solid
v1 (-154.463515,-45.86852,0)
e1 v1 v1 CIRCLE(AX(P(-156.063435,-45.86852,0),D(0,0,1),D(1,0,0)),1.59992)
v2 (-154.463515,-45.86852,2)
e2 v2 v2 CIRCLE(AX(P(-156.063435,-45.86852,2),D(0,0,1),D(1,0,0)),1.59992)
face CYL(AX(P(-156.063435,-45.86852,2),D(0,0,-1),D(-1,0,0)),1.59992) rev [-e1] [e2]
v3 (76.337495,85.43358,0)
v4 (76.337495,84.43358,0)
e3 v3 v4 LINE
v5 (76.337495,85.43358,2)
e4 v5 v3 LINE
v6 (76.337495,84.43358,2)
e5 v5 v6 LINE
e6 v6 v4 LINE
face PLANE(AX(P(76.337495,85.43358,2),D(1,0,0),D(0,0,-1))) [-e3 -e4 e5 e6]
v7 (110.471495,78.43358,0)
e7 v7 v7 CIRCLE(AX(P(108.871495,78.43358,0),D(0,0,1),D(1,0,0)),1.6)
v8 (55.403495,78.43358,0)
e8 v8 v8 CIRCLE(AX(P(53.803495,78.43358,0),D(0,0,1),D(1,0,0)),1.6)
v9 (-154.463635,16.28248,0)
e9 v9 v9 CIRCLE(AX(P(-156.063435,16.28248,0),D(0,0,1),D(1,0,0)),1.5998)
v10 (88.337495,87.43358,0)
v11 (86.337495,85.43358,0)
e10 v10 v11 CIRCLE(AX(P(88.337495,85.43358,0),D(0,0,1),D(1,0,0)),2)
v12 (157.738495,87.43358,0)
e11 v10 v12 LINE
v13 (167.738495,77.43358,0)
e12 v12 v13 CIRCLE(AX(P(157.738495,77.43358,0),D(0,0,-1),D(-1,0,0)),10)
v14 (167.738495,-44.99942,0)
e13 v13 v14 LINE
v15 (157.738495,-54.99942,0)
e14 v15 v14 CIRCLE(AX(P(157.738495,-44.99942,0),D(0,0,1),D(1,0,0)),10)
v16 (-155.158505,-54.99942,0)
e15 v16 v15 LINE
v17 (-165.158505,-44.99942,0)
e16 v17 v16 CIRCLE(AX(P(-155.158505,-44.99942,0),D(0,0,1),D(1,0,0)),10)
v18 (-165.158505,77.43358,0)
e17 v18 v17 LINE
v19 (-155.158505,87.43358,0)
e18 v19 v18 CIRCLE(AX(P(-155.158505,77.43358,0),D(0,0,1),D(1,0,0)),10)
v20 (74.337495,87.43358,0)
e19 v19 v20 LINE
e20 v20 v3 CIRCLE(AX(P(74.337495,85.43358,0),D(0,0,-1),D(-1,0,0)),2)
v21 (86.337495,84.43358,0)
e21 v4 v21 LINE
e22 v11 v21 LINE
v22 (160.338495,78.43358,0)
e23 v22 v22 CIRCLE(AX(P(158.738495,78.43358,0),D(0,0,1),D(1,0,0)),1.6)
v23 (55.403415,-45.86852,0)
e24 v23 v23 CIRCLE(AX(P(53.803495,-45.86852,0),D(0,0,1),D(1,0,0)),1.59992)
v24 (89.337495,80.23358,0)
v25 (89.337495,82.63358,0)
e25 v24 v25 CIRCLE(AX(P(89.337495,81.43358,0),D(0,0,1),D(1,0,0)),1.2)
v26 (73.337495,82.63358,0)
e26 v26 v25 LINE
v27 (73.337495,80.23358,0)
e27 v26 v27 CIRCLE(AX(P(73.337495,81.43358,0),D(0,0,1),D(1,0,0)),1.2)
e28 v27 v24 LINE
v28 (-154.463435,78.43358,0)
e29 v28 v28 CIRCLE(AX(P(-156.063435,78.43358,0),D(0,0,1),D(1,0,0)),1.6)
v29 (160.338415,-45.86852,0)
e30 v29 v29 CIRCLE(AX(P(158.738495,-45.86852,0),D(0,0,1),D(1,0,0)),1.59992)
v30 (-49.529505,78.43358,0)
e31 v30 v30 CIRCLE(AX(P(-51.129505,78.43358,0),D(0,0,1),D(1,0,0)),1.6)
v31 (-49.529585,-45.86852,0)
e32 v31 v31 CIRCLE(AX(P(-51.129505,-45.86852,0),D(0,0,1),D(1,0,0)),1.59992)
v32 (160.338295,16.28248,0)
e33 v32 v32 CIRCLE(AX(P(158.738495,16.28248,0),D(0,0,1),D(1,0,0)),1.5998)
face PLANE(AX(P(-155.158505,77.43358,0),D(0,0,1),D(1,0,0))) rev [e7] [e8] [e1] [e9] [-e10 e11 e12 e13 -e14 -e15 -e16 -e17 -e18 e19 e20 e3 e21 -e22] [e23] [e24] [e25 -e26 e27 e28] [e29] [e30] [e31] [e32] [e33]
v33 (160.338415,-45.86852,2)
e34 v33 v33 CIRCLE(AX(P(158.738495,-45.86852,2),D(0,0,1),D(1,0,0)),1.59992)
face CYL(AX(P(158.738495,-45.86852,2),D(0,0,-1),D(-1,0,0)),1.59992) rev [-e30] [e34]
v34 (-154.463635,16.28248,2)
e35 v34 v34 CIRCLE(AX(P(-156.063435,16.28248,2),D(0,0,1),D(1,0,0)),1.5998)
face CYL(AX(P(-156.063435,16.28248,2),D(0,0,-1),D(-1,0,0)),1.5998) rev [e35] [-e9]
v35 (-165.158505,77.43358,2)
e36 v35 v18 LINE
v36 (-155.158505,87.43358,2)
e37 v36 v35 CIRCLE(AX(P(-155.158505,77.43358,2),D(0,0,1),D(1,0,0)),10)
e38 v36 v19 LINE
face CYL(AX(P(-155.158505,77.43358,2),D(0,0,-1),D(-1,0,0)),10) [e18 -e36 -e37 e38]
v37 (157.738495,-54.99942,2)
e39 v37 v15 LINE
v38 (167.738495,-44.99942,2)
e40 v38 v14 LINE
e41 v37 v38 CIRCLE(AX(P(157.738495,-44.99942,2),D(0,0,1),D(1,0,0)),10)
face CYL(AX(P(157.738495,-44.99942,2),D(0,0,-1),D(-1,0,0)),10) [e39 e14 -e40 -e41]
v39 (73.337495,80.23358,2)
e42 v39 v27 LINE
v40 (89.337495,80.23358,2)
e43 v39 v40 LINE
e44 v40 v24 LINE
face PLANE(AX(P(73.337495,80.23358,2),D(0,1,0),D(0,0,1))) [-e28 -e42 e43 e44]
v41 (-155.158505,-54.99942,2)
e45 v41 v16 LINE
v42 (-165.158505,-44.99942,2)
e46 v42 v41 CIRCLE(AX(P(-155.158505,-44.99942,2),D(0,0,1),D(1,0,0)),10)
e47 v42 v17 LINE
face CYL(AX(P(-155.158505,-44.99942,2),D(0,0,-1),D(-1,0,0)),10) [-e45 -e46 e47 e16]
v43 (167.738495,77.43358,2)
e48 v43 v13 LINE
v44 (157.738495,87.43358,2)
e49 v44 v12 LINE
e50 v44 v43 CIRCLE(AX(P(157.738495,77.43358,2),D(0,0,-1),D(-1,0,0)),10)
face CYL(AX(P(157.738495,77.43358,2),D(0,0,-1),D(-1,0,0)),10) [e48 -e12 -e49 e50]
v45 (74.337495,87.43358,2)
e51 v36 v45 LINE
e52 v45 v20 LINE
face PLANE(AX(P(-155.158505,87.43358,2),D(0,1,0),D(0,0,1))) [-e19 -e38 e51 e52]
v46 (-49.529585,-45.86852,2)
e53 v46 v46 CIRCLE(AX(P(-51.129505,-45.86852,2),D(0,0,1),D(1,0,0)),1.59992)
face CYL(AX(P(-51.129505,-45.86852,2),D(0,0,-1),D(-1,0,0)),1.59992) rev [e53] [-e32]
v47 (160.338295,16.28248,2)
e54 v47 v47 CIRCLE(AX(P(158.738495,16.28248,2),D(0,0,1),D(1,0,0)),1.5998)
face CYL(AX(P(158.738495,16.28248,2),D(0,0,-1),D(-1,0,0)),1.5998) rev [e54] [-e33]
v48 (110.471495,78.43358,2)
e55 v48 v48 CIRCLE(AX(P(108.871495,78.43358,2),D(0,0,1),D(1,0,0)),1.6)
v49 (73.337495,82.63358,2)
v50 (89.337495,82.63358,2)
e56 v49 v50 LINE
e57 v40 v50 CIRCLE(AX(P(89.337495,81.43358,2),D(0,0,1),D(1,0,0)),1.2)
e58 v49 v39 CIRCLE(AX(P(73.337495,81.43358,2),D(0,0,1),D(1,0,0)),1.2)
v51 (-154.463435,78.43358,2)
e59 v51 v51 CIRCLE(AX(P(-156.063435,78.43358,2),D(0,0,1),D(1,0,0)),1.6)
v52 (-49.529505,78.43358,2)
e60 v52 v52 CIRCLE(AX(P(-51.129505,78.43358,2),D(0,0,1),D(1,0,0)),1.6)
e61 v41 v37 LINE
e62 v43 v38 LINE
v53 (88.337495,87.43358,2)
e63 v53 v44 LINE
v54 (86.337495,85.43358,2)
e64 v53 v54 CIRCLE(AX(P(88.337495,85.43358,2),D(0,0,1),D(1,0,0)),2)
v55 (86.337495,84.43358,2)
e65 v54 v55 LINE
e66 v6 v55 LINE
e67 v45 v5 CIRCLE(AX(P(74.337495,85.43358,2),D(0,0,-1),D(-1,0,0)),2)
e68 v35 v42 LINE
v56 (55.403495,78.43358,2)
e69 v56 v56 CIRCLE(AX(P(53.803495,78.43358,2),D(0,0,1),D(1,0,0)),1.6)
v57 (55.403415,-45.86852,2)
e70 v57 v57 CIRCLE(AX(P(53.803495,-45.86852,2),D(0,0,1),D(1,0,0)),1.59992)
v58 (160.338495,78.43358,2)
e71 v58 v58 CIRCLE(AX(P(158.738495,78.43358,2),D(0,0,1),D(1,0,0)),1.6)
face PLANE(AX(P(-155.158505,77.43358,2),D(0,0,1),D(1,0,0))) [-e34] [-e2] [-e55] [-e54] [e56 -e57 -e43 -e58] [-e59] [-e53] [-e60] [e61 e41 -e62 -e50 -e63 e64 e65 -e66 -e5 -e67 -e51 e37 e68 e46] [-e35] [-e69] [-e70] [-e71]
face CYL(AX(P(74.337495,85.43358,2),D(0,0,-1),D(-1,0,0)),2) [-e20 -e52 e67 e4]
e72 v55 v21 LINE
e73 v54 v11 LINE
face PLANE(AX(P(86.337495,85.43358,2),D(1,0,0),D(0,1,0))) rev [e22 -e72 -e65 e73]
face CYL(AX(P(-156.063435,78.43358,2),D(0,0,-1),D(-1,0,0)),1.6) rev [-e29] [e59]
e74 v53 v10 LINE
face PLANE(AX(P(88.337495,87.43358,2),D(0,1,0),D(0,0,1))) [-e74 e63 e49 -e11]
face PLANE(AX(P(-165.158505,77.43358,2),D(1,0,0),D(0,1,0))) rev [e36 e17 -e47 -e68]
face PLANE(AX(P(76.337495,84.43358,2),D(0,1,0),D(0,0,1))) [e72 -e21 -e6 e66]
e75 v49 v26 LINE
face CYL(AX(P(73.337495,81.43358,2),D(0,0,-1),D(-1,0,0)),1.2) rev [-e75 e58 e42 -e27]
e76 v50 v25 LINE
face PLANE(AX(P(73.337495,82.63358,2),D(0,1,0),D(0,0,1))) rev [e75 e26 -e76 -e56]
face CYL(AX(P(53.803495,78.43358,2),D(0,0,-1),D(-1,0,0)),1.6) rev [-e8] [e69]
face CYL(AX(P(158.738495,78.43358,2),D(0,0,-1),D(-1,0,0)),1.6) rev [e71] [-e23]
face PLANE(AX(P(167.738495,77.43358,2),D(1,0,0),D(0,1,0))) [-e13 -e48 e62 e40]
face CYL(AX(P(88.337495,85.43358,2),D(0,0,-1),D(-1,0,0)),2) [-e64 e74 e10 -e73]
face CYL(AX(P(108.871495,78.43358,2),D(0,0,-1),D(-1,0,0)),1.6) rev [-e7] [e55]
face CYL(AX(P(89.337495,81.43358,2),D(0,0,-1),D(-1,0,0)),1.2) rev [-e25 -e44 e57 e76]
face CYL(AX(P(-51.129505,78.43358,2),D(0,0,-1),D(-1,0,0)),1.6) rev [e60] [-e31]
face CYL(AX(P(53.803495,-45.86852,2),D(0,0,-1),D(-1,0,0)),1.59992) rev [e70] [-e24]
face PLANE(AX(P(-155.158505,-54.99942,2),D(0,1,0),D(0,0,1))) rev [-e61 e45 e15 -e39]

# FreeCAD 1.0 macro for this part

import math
import FreeCAD as App
import Part
import Sketcher

V = App.Vector

doc = App.newDocument("Part")
body = doc.addObject("PartDesign::Body", "Body")

# Sketch on XY plane
sketch1 = body.newObject("Sketcher::SketchObject", "Sketch")
sketch1.AttachmentSupport = (doc.getObject("XY_Plane"), [""])
sketch1.MapMode = "FlatFace"
sketch1.addGeometry(Part.LineSegment(V(-165.2, 77.4, 0), V(-165.2, -45, 0)), False)
sketch1.addGeometry(Part.ArcOfCircle(Part.Circle(V(-155.2, -45, 0), V(0, 0, 1), 10), math.radians(180), math.radians(270)), False)
sketch1.addGeometry(Part.LineSegment(V(-155.2, -55, 0), V(157.7, -55, 0)), False)
sketch1.addGeometry(Part.ArcOfCircle(Part.Circle(V(157.7, -45, 0), V(0, 0, 1), 10), math.radians(-90), math.radians(0)), False)
sketch1.addGeometry(Part.LineSegment(V(167.7, -45, 0), V(167.7, 77.4, 0)), False)
sketch1.addGeometry(Part.ArcOfCircle(Part.Circle(V(157.7, 77.4, 0), V(0, 0, 1), 10), math.radians(0), math.radians(90)), False)
sketch1.addGeometry(Part.LineSegment(V(157.7, 87.4, 0), V(88.3, 87.4, 0)), False)
sketch1.addGeometry(Part.ArcOfCircle(Part.Circle(V(88.3, 85.4, 0), V(0, 0, 1), 2), math.radians(90), math.radians(180)), False)
sketch1.addGeometry(Part.LineSegment(V(86.3, 85.4, 0), V(86.3, 84.4, 0)), False)
sketch1.addGeometry(Part.LineSegment(V(86.3, 84.4, 0), V(76.3, 84.4, 0)), False)
sketch1.addGeometry(Part.LineSegment(V(76.3, 84.4, 0), V(76.3, 85.4, 0)), False)
sketch1.addGeometry(Part.ArcOfCircle(Part.Circle(V(74.3, 85.4, 0), V(0, 0, 1), 2), math.radians(0), math.radians(90)), False)
sketch1.addGeometry(Part.LineSegment(V(74.3, 87.4, 0), V(-155.2, 87.4, 0)), False)
sketch1.addGeometry(Part.ArcOfCircle(Part.Circle(V(-155.2, 77.4, 0), V(0, 0, 1), 10), math.radians(90), math.radians(180)), False)
sketch1.addGeometry(Part.Circle(V(-156.1, -45.9, 0), V(0, 0, 1), 1.6), False)
sketch1.addGeometry(Part.Circle(V(-51.1, -45.9, 0), V(0, 0, 1), 1.6), False)
sketch1.addGeometry(Part.Circle(V(-156.1, 16.3, 0), V(0, 0, 1), 1.6), False)
sketch1.addGeometry(Part.Circle(V(53.8, -45.9, 0), V(0, 0, 1), 1.6), False)
sketch1.addGeometry(Part.Circle(V(158.7, -45.9, 0), V(0, 0, 1), 1.6), False)
sketch1.addGeometry(Part.Circle(V(158.7, 16.3, 0), V(0, 0, 1), 1.6), False)
sketch1.addGeometry(Part.Circle(V(-156.1, 78.4, 0), V(0, 0, 1), 1.6), False)
sketch1.addGeometry(Part.Circle(V(-51.1, 78.4, 0), V(0, 0, 1), 1.6), False)
sketch1.addGeometry(Part.Circle(V(53.8, 78.4, 0), V(0, 0, 1), 1.6), False)
sketch1.addGeometry(Part.ArcOfCircle(Part.Circle(V(73.3, 81.4, 0), V(0, 0, 1), 1.2), math.radians(90), math.radians(270)), False)
sketch1.addGeometry(Part.LineSegment(V(73.3, 82.6, 0), V(89.3, 82.6, 0)), False)
sketch1.addGeometry(Part.ArcOfCircle(Part.Circle(V(89.3, 81.4, 0), V(0, 0, 1), 1.2), math.radians(-90), math.radians(90)), False)
sketch1.addGeometry(Part.LineSegment(V(89.3, 80.2, 0), V(73.3, 80.2, 0)), False)
sketch1.addGeometry(Part.Circle(V(108.9, 78.4, 0), V(0, 0, 1), 1.6), False)
sketch1.addGeometry(Part.Circle(V(158.7, 78.4, 0), V(0, 0, 1), 1.6), False)
sketch1.addConstraint(Sketcher.Constraint("Tangent", 0, 2, 1, 1))
sketch1.addConstraint(Sketcher.Constraint("Tangent", 1, 2, 2, 1))
sketch1.addConstraint(Sketcher.Constraint("Tangent", 2, 2, 3, 1))
sketch1.addConstraint(Sketcher.Constraint("Tangent", 3, 2, 4, 1))
sketch1.addConstraint(Sketcher.Constraint("Tangent", 4, 2, 5, 1))
sketch1.addConstraint(Sketcher.Constraint("Tangent", 5, 2, 6, 1))
sketch1.addConstraint(Sketcher.Constraint("Tangent", 6, 2, 7, 1))
sketch1.addConstraint(Sketcher.Constraint("Tangent", 7, 2, 8, 1))
sketch1.addConstraint(Sketcher.Constraint("Coincident", 8, 2, 9, 1))
sketch1.addConstraint(Sketcher.Constraint("Coincident", 9, 2, 10, 1))
sketch1.addConstraint(Sketcher.Constraint("Tangent", 10, 2, 11, 1))
sketch1.addConstraint(Sketcher.Constraint("Tangent", 11, 2, 12, 1))
sketch1.addConstraint(Sketcher.Constraint("Tangent", 12, 2, 13, 1))
sketch1.addConstraint(Sketcher.Constraint("Tangent", 13, 2, 0, 1))
sketch1.addConstraint(Sketcher.Constraint("Tangent", 23, 1, 24, 1))
sketch1.addConstraint(Sketcher.Constraint("Tangent", 24, 2, 25, 2))
sketch1.addConstraint(Sketcher.Constraint("Tangent", 25, 1, 26, 1))
sketch1.addConstraint(Sketcher.Constraint("Tangent", 26, 2, 23, 2))
sketch1.addConstraint(Sketcher.Constraint("Vertical", 0))
sketch1.addConstraint(Sketcher.Constraint("Horizontal", 2))
sketch1.addConstraint(Sketcher.Constraint("Vertical", 4))
sketch1.addConstraint(Sketcher.Constraint("Horizontal", 6))
sketch1.addConstraint(Sketcher.Constraint("Vertical", 8))
sketch1.addConstraint(Sketcher.Constraint("Horizontal", 9))
sketch1.addConstraint(Sketcher.Constraint("Vertical", 10))
sketch1.addConstraint(Sketcher.Constraint("Horizontal", 12))
sketch1.addConstraint(Sketcher.Constraint("Horizontal", 24))
sketch1.addConstraint(Sketcher.Constraint("Horizontal", 26))
sketch1.addConstraint(Sketcher.Constraint("Equal", 1, 3))
sketch1.addConstraint(Sketcher.Constraint("Equal", 3, 5))
sketch1.addConstraint(Sketcher.Constraint("Equal", 7, 11))
sketch1.addConstraint(Sketcher.Constraint("Equal", 5, 13))
sketch1.addConstraint(Sketcher.Constraint("Equal", 14, 15))
sketch1.addConstraint(Sketcher.Constraint("Equal", 15, 17))
sketch1.addConstraint(Sketcher.Constraint("Equal", 17, 18))
sketch1.addConstraint(Sketcher.Constraint("Equal", 16, 19))
sketch1.addConstraint(Sketcher.Constraint("Equal", 20, 21))
sketch1.addConstraint(Sketcher.Constraint("Equal", 21, 22))
sketch1.addConstraint(Sketcher.Constraint("Equal", 22, 27))
sketch1.addConstraint(Sketcher.Constraint("Equal", 27, 28))
sketch1.addConstraint(Sketcher.Constraint("Horizontal", 7, 3, 11, 3))
sketch1.addConstraint(Sketcher.Constraint("Horizontal", 14, 3, 15, 3))
sketch1.addConstraint(Sketcher.Constraint("Horizontal", 15, 3, 17, 3))
sketch1.addConstraint(Sketcher.Constraint("Horizontal", 17, 3, 18, 3))
sketch1.addConstraint(Sketcher.Constraint("Horizontal", 16, 3, 19, 3))
sketch1.addConstraint(Sketcher.Constraint("Horizontal", 20, 3, 21, 3))
sketch1.addConstraint(Sketcher.Constraint("Horizontal", 21, 3, 22, 3))
sketch1.addConstraint(Sketcher.Constraint("Horizontal", 22, 3, 27, 3))
sketch1.addConstraint(Sketcher.Constraint("Horizontal", 27, 3, 28, 3))
sketch1.addConstraint(Sketcher.Constraint("Vertical", 14, 3, 16, 3))
sketch1.addConstraint(Sketcher.Constraint("Vertical", 18, 3, 19, 3))
sketch1.addConstraint(Sketcher.Constraint("Vertical", 16, 3, 20, 3))
sketch1.addConstraint(Sketcher.Constraint("Vertical", 15, 3, 21, 3))
sketch1.addConstraint(Sketcher.Constraint("Vertical", 17, 3, 22, 3))
sketch1.addConstraint(Sketcher.Constraint("Vertical", 19, 3, 28, 3))
sketch1.addConstraint(Sketcher.Constraint("Radius", 1, 10.0))
sketch1.addConstraint(Sketcher.Constraint("Radius", 7, 2.0))
sketch1.addConstraint(Sketcher.Constraint("Diameter", 20, 3.2))
sketch1.addConstraint(Sketcher.Constraint("Radius", 23, 1.2))
sketch1.addConstraint(Sketcher.Constraint("DistanceX", 9, 2, 9, 1, 10.0))
sketch1.addConstraint(Sketcher.Constraint("DistanceX", 24, 1, 24, 2, 16.0))
sketch1.addConstraint(Sketcher.Constraint("DistanceY", 8, 2, 8, 1, 1.0))
sketch1.addConstraint(Sketcher.Constraint("DistanceX", 3, 3, 18, 3, 1.0))
sketch1.addConstraint(Sketcher.Constraint("DistanceY", 13, 3, 20, 3, 1.0))
sketch1.addConstraint(Sketcher.Constraint("DistanceX", 23, 3, 11, 3, 1.0))
sketch1.addConstraint(Sketcher.Constraint("DistanceY", 23, 3, 11, 3, 4.0))
sketch1.addConstraint(Sketcher.Constraint("Diameter", 16, 3.1996))
sketch1.addConstraint(Sketcher.Constraint("Diameter", 14, 3.19984))
sketch1.addConstraint(Sketcher.Constraint("DistanceX", 2, 1, 2, 2, 312.897))
sketch1.addConstraint(Sketcher.Constraint("DistanceX", 6, 2, 6, 1, 69.401))
sketch1.addConstraint(Sketcher.Constraint("DistanceY", 0, 2, 0, 1, 122.433))
sketch1.addConstraint(Sketcher.Constraint("DistanceX", 1, 3, 15, 3, 104.029))
sketch1.addConstraint(Sketcher.Constraint("DistanceY", 14, 3, 16, 3, 62.151))
sketch1.addConstraint(Sketcher.Constraint("DistanceX", 17, 3, 3, 3, 103.935))
sketch1.addConstraint(Sketcher.Constraint("DistanceX", 25, 3, 27, 3, 19.534))
sketch1.addConstraint(Sketcher.Constraint("DistanceY", 14, 3, 1, 3, 0.8691))
sketch1.addConstraint(Sketcher.Constraint("DistanceY", 1, 3, -1, 1, 44.99942))
sketch1.addConstraint(Sketcher.Constraint("DistanceX", 14, 3, 1, 3, 0.90493))
sketch1.addConstraint(Sketcher.Constraint("DistanceX", 1, 3, -1, 1, 155.158505))
pad1 = body.newObject("PartDesign::Pad", "Pad")
pad1.Profile = sketch1
pad1.Length = 2

doc.recompute()
